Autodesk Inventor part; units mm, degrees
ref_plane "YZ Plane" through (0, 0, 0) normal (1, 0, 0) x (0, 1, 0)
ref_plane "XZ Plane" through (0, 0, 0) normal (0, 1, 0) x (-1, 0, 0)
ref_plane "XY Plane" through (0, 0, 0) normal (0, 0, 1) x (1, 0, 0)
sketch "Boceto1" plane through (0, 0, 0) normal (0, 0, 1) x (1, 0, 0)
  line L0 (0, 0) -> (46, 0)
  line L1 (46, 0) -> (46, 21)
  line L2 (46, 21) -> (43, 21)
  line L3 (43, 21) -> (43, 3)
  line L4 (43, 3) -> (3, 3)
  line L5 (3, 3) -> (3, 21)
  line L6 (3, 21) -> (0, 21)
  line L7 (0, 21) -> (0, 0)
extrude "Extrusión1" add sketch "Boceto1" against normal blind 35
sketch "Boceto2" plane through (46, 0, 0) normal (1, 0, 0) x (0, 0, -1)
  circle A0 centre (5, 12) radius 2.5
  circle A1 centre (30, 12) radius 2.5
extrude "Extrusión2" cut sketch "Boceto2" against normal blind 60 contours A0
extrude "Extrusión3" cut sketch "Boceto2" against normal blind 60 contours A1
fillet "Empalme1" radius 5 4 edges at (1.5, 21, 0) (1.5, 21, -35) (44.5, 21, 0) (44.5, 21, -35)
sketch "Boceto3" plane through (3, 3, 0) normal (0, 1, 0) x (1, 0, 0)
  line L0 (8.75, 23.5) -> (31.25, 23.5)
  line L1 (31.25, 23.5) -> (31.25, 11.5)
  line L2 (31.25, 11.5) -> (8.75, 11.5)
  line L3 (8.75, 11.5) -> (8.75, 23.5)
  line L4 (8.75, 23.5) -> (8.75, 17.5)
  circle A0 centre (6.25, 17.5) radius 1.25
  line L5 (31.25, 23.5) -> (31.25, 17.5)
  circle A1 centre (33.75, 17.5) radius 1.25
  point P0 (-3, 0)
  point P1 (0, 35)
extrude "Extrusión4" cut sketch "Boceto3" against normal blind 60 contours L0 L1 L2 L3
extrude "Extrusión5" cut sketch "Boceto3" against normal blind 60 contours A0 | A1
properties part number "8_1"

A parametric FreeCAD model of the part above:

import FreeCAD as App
import Part
import Sketcher
from FreeCAD import Vector
Q = App.Units.Quantity


def edges_at(feature, points):
    """Names of the edges that pass closest to the given points."""
    edges = feature.Shape.Edges
    near = lambda p: min(range(len(edges)), key=lambda i: edges[i].distToShape(Part.Vertex(*p))[0])
    return sorted({f"Edge{near(p) + 1}" for p in points})


def add_polygon(sketch, points):
    """Adds a closed chain of lines whose ends are joined by coincident constraints."""
    first, n = sketch.GeometryCount, len(points)
    for a, b in zip(points, points[1:] + points[:1]):
        sketch.addGeometry(Part.LineSegment(App.Vector(*a, 0), App.Vector(*b, 0)), False)
    for i in range(n):
        sketch.addConstraint(Sketcher.Constraint("Coincident", first + i, 2, first + (i + 1) % n, 1))

doc = App.newDocument("Part")
body = doc.addObject("PartDesign::Body", "Body")

sketch1 = body.newObject("Sketcher::SketchObject", "Sketch")
sketch1.AttachmentSupport = (doc.getObject("XY_Plane"), [""])
sketch1.MapMode = "FlatFace"
add_polygon(sketch1, [(0, 21), (0, 0), (46, 0), (46, 21), (43, 21), (43, 3), (3, 3), (3, 21)])
sketch1.addConstraint([
    Sketcher.Constraint("Vertical", 0),
    Sketcher.Constraint("Horizontal", 1),
    Sketcher.Constraint("Vertical", 2),
    Sketcher.Constraint("Horizontal", 3),
    Sketcher.Constraint("Vertical", 4),
    Sketcher.Constraint("Horizontal", 5),
    Sketcher.Constraint("Vertical", 6),
    Sketcher.Constraint("Horizontal", 7),
    Sketcher.Constraint("Coincident", 0, 2, -1, 1),
    Sketcher.Constraint("Horizontal", 3, 2, 6, 2),
    Sketcher.Constraint("Equal", 3, 7),
    Sketcher.Constraint("DistanceX", 1, 1, 1, 2, Q("46 mm")),
    Sketcher.Constraint("DistanceX", 3, 2, 3, 1, Q("3 mm")),
    Sketcher.Constraint("DistanceY", 0, 2, 0, 1, Q("21 mm")),
    Sketcher.Constraint("DistanceY", 4, 2, 4, 1, Q("18 mm")),
])
pad1 = body.newObject("PartDesign::Pad", "Pad")
pad1.Profile = sketch1
pad1.Length = 35
pad1.Reversed = True

sketch2 = body.newObject("Sketcher::SketchObject", "Sketch001")
sketch2.AttachmentSupport = (doc.getObject("YZ_Plane"), [""])
sketch2.MapMode = "FlatFace"
sketch2.AttachmentOffset = App.Placement(Vector(0, 0, 46), App.Rotation())
sketch2.addGeometry(Part.Circle(Vector(12, -5, 0), Vector(0, 0, 1), 2.5), False)
sketch2.addConstraint([
    Sketcher.Constraint("Diameter", 0, Q("5 mm")),
    Sketcher.Constraint("DistanceX", -1, 1, 0, 3, Q("12 mm")),
    Sketcher.Constraint("DistanceY", 0, 3, -1, 1, Q("5 mm")),
])
pocket1 = body.newObject("PartDesign::Pocket", "Pocket")
pocket1.Profile = sketch2
pocket1.Length = 60

sketch3 = body.newObject("Sketcher::SketchObject", "Sketch002")
sketch3.AttachmentSupport = (doc.getObject("YZ_Plane"), [""])
sketch3.MapMode = "FlatFace"
sketch3.AttachmentOffset = App.Placement(Vector(0, 0, 46), App.Rotation())
sketch3.addGeometry(Part.Circle(Vector(12, -30, 0), Vector(0, 0, 1), 2.5), False)
sketch3.addConstraint([
    Sketcher.Constraint("Diameter", 0, Q("5 mm")),
    Sketcher.Constraint("DistanceX", -1, 1, 0, 3, Q("12 mm")),
    Sketcher.Constraint("DistanceY", 0, 3, -1, 1, Q("30 mm")),
])
pocket2 = body.newObject("PartDesign::Pocket", "Pocket001")
pocket2.Profile = sketch3
pocket2.Length = 60
doc.recompute()

fillet = body.newObject("PartDesign::Fillet", "Fillet")
fillet.Base = (pocket2, edges_at(pocket2, [
    (1.5, 21, 0),
    (1.5, 21, -35),
    (44.5, 21, 0),
    (44.5, 21, -35),
]))
fillet.Radius = 5

sketch4 = body.newObject("Sketcher::SketchObject", "Sketch003")
sketch4.AttachmentSupport = (doc.getObject("XZ_Plane"), [""])
sketch4.MapMode = "FlatFace"
sketch4.AttachmentOffset = App.Placement(Vector(0, 0, -3), App.Rotation())
add_polygon(sketch4, [(34.25, -23.5), (11.75, -23.5), (11.75, -11.5), (34.25, -11.5)])
sketch4.addConstraint([
    Sketcher.Constraint("Horizontal", 0),
    Sketcher.Constraint("Vertical", 1),
    Sketcher.Constraint("Horizontal", 2),
    Sketcher.Constraint("Vertical", 3),
    Sketcher.Constraint("DistanceY", 1, 1, 1, 2, Q("12 mm")),
    Sketcher.Constraint("DistanceX", 0, 2, 0, 1, Q("22.5 mm")),
    Sketcher.Constraint("DistanceY", 0, 2, -1, 1, Q("23.5 mm")),
    Sketcher.Constraint("DistanceX", -1, 1, 0, 2, Q("11.75 mm")),
])
pocket3 = body.newObject("PartDesign::Pocket", "Pocket002")
pocket3.Profile = sketch4
pocket3.Length = 60
pocket3.Reversed = True

sketch5 = body.newObject("Sketcher::SketchObject", "Sketch004")
sketch5.AttachmentSupport = (doc.getObject("XZ_Plane"), [""])
sketch5.MapMode = "FlatFace"
sketch5.AttachmentOffset = App.Placement(Vector(0, 0, -3), App.Rotation())
sketch5.addGeometry([
    Part.Circle(Vector(9.25, -17.5, 0), Vector(0, 0, 1), 1.25),
    Part.Circle(Vector(36.75, -17.5, 0), Vector(0, 0, 1), 1.25),
], False)
sketch5.addConstraint([
    Sketcher.Constraint("Equal", 0, 1),
    Sketcher.Constraint("Horizontal", 0, 3, 1, 3),
    Sketcher.Constraint("Diameter", 0, Q("2.5 mm")),
    Sketcher.Constraint("DistanceY", 0, 3, -1, 1, Q("17.5 mm")),
    Sketcher.Constraint("DistanceX", 0, 3, 1, 3, Q("27.5 mm")),
    Sketcher.Constraint("DistanceX", -1, 1, 0, 3, Q("9.25 mm")),
])
pocket4 = body.newObject("PartDesign::Pocket", "Pocket003")
pocket4.Profile = sketch5
pocket4.Length = 60
pocket4.Reversed = True

doc.recompute()
